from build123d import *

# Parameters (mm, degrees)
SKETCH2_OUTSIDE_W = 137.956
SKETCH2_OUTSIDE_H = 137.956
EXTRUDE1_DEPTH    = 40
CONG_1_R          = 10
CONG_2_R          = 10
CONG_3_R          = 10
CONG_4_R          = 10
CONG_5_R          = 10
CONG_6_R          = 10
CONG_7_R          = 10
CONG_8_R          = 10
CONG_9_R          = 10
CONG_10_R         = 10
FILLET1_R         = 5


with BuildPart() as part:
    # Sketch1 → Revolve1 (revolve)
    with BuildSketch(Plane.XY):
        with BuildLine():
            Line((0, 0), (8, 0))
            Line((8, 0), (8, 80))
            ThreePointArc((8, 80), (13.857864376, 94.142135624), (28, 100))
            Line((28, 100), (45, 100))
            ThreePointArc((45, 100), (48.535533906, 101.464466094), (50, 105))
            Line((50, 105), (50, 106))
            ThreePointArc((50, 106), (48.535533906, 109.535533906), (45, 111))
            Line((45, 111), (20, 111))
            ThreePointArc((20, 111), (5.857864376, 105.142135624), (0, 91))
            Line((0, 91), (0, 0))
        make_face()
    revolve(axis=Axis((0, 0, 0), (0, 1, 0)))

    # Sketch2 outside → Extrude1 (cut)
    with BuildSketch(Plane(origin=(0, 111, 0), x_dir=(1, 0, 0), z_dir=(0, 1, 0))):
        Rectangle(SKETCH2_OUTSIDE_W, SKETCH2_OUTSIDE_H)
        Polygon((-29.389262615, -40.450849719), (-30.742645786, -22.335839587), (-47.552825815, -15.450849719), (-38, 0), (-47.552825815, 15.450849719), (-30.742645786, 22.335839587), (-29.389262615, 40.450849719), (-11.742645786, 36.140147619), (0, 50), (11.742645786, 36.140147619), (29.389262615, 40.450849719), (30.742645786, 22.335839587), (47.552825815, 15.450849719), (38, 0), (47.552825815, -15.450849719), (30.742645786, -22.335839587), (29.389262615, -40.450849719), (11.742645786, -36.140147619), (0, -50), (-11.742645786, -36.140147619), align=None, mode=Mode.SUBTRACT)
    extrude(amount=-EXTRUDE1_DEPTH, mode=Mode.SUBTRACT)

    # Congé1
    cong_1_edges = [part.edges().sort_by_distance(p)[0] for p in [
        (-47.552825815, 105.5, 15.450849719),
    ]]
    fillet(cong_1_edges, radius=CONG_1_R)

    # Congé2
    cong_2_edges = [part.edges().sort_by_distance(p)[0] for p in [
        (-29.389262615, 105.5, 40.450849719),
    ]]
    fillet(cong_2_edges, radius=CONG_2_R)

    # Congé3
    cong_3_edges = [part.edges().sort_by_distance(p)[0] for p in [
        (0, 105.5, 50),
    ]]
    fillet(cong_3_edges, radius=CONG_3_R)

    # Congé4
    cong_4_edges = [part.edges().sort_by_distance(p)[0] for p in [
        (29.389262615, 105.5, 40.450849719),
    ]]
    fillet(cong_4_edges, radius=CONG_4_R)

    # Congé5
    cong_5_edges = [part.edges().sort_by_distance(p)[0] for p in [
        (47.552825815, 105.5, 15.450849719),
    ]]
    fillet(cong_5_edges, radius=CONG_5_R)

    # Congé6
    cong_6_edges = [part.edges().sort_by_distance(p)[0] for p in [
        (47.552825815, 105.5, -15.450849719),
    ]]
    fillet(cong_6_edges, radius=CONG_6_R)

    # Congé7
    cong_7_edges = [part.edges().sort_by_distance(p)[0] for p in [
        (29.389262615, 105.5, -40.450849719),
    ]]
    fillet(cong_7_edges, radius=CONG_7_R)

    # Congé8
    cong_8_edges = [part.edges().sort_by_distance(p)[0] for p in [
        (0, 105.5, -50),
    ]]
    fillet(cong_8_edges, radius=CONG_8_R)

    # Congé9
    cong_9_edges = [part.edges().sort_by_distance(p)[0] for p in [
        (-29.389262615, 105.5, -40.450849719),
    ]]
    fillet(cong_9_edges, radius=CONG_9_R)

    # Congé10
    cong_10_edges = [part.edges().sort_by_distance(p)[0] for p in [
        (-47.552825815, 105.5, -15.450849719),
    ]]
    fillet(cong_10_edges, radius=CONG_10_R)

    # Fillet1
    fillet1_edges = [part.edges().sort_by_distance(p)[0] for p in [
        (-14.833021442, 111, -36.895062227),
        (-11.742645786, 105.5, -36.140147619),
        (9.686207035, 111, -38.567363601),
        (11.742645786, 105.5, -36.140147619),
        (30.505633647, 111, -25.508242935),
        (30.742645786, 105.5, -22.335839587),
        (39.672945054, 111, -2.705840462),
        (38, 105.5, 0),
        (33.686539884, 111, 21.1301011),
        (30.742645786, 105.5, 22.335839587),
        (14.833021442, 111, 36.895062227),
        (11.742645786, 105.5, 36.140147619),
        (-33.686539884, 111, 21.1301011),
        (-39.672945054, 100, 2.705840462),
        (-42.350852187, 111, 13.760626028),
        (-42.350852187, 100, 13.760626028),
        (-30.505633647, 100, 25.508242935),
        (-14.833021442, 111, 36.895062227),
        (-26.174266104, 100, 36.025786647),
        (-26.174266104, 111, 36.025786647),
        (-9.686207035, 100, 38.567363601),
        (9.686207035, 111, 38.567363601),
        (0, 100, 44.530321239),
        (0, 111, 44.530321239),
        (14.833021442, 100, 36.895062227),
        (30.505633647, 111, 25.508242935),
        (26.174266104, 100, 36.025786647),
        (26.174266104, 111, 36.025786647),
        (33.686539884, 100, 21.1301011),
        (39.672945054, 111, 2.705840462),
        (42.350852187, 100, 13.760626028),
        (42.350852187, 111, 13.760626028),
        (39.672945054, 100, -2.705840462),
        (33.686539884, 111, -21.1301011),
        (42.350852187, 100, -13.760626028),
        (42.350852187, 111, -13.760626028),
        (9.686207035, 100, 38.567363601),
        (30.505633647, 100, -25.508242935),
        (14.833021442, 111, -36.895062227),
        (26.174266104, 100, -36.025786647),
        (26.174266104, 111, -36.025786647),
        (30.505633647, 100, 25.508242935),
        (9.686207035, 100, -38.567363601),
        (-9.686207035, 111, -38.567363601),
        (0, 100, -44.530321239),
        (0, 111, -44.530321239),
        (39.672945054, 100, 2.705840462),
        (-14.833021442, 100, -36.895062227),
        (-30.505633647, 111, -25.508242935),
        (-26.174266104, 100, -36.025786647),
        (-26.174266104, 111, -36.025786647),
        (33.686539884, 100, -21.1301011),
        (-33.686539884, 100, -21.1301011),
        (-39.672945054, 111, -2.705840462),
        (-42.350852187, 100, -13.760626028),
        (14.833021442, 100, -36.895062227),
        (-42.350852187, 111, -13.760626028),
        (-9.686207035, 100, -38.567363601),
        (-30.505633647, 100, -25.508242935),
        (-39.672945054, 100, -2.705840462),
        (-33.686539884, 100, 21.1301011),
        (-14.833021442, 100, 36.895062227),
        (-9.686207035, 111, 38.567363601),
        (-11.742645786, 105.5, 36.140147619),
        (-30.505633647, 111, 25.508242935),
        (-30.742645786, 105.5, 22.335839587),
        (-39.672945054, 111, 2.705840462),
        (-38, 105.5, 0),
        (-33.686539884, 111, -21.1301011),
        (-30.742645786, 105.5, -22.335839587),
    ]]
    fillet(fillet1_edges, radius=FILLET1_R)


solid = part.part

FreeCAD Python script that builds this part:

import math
import FreeCAD as App
import Part
import Sketcher

V = App.Vector


def edges_at(feature, points):
    """Names of the edges that pass closest to the given points."""
    edges = feature.Shape.Edges
    near = lambda p: min(range(len(edges)), key=lambda i: edges[i].distToShape(Part.Vertex(*p))[0])
    return sorted({f"Edge{near(p) + 1}" for p in points})


def add_polygon(sketch, points):
    """Adds a closed chain of lines whose ends are joined by coincident constraints."""
    first, n = sketch.GeometryCount, len(points)
    for a, b in zip(points, points[1:] + points[:1]):
        sketch.addGeometry(Part.LineSegment(App.Vector(*a, 0), App.Vector(*b, 0)), False)
    for i in range(n):
        sketch.addConstraint(Sketcher.Constraint("Coincident", first + i, 2, first + (i + 1) % n, 1))

doc = App.newDocument("Part")
body = doc.addObject("PartDesign::Body", "Body")

# Sketch on XY plane
sketch1 = doc.addObject("Sketcher::SketchObject", "Sketch")
body.addObject(sketch1)
sketch1.AttachmentSupport = (doc.XY_Plane, [""])
sketch1.MapMode = "FlatFace"
sketch1.addGeometry(Part.LineSegment(V(0, 0, 0), V(8, 0, 0)), False)
sketch1.addGeometry(Part.LineSegment(V(8, 0, 0), V(8, 80, 0)), False)
sketch1.addGeometry(Part.ArcOfCircle(Part.Circle(V(28, 80, 0), V(0, 0, 1), 20), math.radians(90), math.radians(180)), False)
sketch1.addGeometry(Part.LineSegment(V(28, 100, 0), V(45, 100, 0)), False)
sketch1.addGeometry(Part.ArcOfCircle(Part.Circle(V(45, 105, 0), V(0, 0, 1), 5), math.radians(-90), math.radians(0)), False)
sketch1.addGeometry(Part.LineSegment(V(50, 105, 0), V(50, 106, 0)), False)
sketch1.addGeometry(Part.ArcOfCircle(Part.Circle(V(45, 106, 0), V(0, 0, 1), 5), math.radians(0), math.radians(90)), False)
sketch1.addGeometry(Part.LineSegment(V(45, 111, 0), V(20, 111, 0)), False)
sketch1.addGeometry(Part.ArcOfCircle(Part.Circle(V(20, 91, 0), V(0, 0, 1), 20), math.radians(90), math.radians(180)), False)
sketch1.addGeometry(Part.LineSegment(V(0, 91, 0), V(0, 0, 0)), False)
sketch1.addConstraint(Sketcher.Constraint("Coincident", 0, 2, 1, 1))
sketch1.addConstraint(Sketcher.Constraint("Tangent", 1, 2, 2, 2))
sketch1.addConstraint(Sketcher.Constraint("Tangent", 2, 1, 3, 1))
sketch1.addConstraint(Sketcher.Constraint("Tangent", 3, 2, 4, 1))
sketch1.addConstraint(Sketcher.Constraint("Tangent", 4, 2, 5, 1))
sketch1.addConstraint(Sketcher.Constraint("Tangent", 5, 2, 6, 1))
sketch1.addConstraint(Sketcher.Constraint("Tangent", 6, 2, 7, 1))
sketch1.addConstraint(Sketcher.Constraint("Tangent", 7, 2, 8, 1))
sketch1.addConstraint(Sketcher.Constraint("Tangent", 8, 2, 9, 1))
sketch1.addConstraint(Sketcher.Constraint("Coincident", 9, 2, 0, 1))
sketch1.addConstraint(Sketcher.Constraint("Horizontal", 0))
sketch1.addConstraint(Sketcher.Constraint("Vertical", 1))
sketch1.addConstraint(Sketcher.Constraint("Horizontal", 3))
sketch1.addConstraint(Sketcher.Constraint("Vertical", 5))
sketch1.addConstraint(Sketcher.Constraint("Horizontal", 7))
sketch1.addConstraint(Sketcher.Constraint("Vertical", 9))
sketch1.addConstraint(Sketcher.Constraint("Coincident", 9, 2, -1, 1))
sketch1.addConstraint(Sketcher.Constraint("Equal", 4, 6))
sketch1.addConstraint(Sketcher.Constraint("Equal", 2, 8))
sketch1.addConstraint(Sketcher.Constraint("Radius", 2, 20.0))
sketch1.addConstraint(Sketcher.Constraint("Radius", 4, 5.0))
sketch1.addConstraint(Sketcher.Constraint("DistanceX", 0, 1, 0, 2, 8.0))
sketch1.addConstraint(Sketcher.Constraint("DistanceX", 3, 1, 3, 2, 17.0))
sketch1.addConstraint(Sketcher.Constraint("DistanceY", 1, 1, 1, 2, 80.0))
sketch1.addConstraint(Sketcher.Constraint("DistanceY", 5, 1, 5, 2, 1.0))
revolution = doc.addObject("PartDesign::Revolution", "Revolution")
body.addObject(revolution)
revolution.Profile = sketch1
revolution.ReferenceAxis = (sketch1, ["V_Axis"])
revolution.Angle = 360

# Sketch on XZ plane
sketch2 = doc.addObject("Sketcher::SketchObject", "Sketch001")
body.addObject(sketch2)
sketch2.AttachmentSupport = (doc.XZ_Plane, [""])
sketch2.MapMode = "FlatFace"
sketch2.AttachmentOffset = App.Placement(V(0, 0, -111), App.Rotation())
add_polygon(sketch2, [(-68.978, -68.978), (-68.978, 68.978), (68.978, 68.978), (68.978, -68.978)])  # lines 0-3
add_polygon(sketch2, [(-11.742646, 36.140148), (-29.389263, 40.45085), (-30.742646, 22.33584), (-47.552826, 15.45085), (-38, 0), (-47.552826, -15.45085), (-30.742646, -22.33584), (-29.389263, -40.45085), (-11.742646, -36.140148), (0, -50), (11.742646, -36.140148), (29.389263, -40.45085), (30.742646, -22.33584), (47.552826, -15.45085), (38, 0), (47.552826, 15.45085), (30.742646, 22.33584), (29.389263, 40.45085), (11.742646, 36.140148), (0, 50)])  # lines 4-23
sketch2.addConstraint(Sketcher.Constraint("Vertical", 0))
sketch2.addConstraint(Sketcher.Constraint("Horizontal", 1))
sketch2.addConstraint(Sketcher.Constraint("Vertical", 2))
sketch2.addConstraint(Sketcher.Constraint("Horizontal", 3))
sketch2.addConstraint(Sketcher.Constraint("Symmetric", 0, 2, 2, 2, -1, 1))
sketch2.addConstraint(Sketcher.Constraint("Symmetric", 4, 2, 14, 2, -1, 1))
sketch2.addConstraint(Sketcher.Constraint("Symmetric", 5, 2, 15, 2, -1, 1))
sketch2.addConstraint(Sketcher.Constraint("Symmetric", 6, 2, 16, 2, -1, 1))
sketch2.addConstraint(Sketcher.Constraint("Symmetric", 7, 2, 17, 2, -1, 1))
sketch2.addConstraint(Sketcher.Constraint("Symmetric", 8, 2, 18, 2, -1, 1))
sketch2.addConstraint(Sketcher.Constraint("Symmetric", 9, 2, 19, 2, -1, 1))
sketch2.addConstraint(Sketcher.Constraint("Symmetric", 10, 2, 20, 2, -1, 1))
sketch2.addConstraint(Sketcher.Constraint("Symmetric", 11, 2, 21, 2, -1, 1))
sketch2.addConstraint(Sketcher.Constraint("Symmetric", 12, 2, 22, 2, -1, 1))
sketch2.addConstraint(Sketcher.Constraint("Symmetric", 13, 2, 23, 2, -1, 1))
sketch2.addConstraint(Sketcher.Constraint("Symmetric", 11, 2, 13, 2, -2))
sketch2.addConstraint(Sketcher.Constraint("Symmetric", 10, 2, 14, 2, -2))
sketch2.addConstraint(Sketcher.Constraint("Symmetric", 9, 2, 15, 2, -2))
sketch2.addConstraint(Sketcher.Constraint("Symmetric", 8, 2, 16, 2, -2))
sketch2.addConstraint(Sketcher.Constraint("PointOnObject", 7, 2, -1))
sketch2.addConstraint(Sketcher.Constraint("PointOnObject", 12, 2, -2))
sketch2.addConstraint(Sketcher.Constraint("Equal", 3, 0))
sketch2.addConstraint(Sketcher.Constraint("Equal", 4, 5))
sketch2.addConstraint(Sketcher.Constraint("Equal", 5, 6))
sketch2.addConstraint(Sketcher.Constraint("Equal", 6, 7))
sketch2.addConstraint(Sketcher.Constraint("Equal", 11, 12))
sketch2.addConstraint(Sketcher.Constraint("DistanceX", 7, 2, -1, 1, 38.0))
sketch2.addConstraint(Sketcher.Constraint("DistanceY", 12, 2, -1, 1, 50.0))
sketch2.addConstraint(Sketcher.Constraint("DistanceY", 6, 2, 4, 2, 25.0))
sketch2.addConstraint(Sketcher.Constraint("DistanceX", 9, 2, 11, 2, 19.0))
sketch2.addConstraint(Sketcher.Constraint("DistanceX", 1, 1, 1, 2, 137.956))
sketch2.addConstraint(Sketcher.Constraint("DistanceY", 8, 2, 6, 2, 30.901699))
sketch2.addConstraint(Sketcher.Constraint("DistanceY", -1, 1, 5, 2, 22.33584))
pocket1 = doc.addObject("PartDesign::Pocket", "Pocket")
body.addObject(pocket1)
pocket1.Profile = sketch2
pocket1.Length = 40
pocket1.Reversed = True
doc.recompute()

fillet = doc.addObject("PartDesign::Fillet", "Fillet")
body.addObject(fillet)
fillet.Base = (pocket1, edges_at(pocket1, [(-47.553, 105.5, 15.451)]))
fillet.Radius = 10
doc.recompute()

fillet2 = doc.addObject("PartDesign::Fillet", "Fillet001")
body.addObject(fillet2)
fillet2.Base = (fillet, edges_at(fillet, [(-29.389, 105.5, 40.451)]))
fillet2.Radius = 10
doc.recompute()

fillet3 = doc.addObject("PartDesign::Fillet", "Fillet002")
body.addObject(fillet3)
fillet3.Base = (fillet2, edges_at(fillet2, [(0, 105.5, 50)]))
fillet3.Radius = 10
doc.recompute()

fillet4 = doc.addObject("PartDesign::Fillet", "Fillet003")
body.addObject(fillet4)
fillet4.Base = (fillet3, edges_at(fillet3, [(29.389, 105.5, 40.451)]))
fillet4.Radius = 10
doc.recompute()

fillet5 = doc.addObject("PartDesign::Fillet", "Fillet004")
body.addObject(fillet5)
fillet5.Base = (fillet4, edges_at(fillet4, [(47.553, 105.5, 15.451)]))
fillet5.Radius = 10
doc.recompute()

fillet6 = doc.addObject("PartDesign::Fillet", "Fillet005")
body.addObject(fillet6)
fillet6.Base = (fillet5, edges_at(fillet5, [(47.553, 105.5, -15.451)]))
fillet6.Radius = 10
doc.recompute()

fillet7 = doc.addObject("PartDesign::Fillet", "Fillet006")
body.addObject(fillet7)
fillet7.Base = (fillet6, edges_at(fillet6, [(29.389, 105.5, -40.451)]))
fillet7.Radius = 10
doc.recompute()

fillet8 = doc.addObject("PartDesign::Fillet", "Fillet007")
body.addObject(fillet8)
fillet8.Base = (fillet7, edges_at(fillet7, [(0, 105.5, -50)]))
fillet8.Radius = 10
doc.recompute()

fillet9 = doc.addObject("PartDesign::Fillet", "Fillet008")
body.addObject(fillet9)
fillet9.Base = (fillet8, edges_at(fillet8, [(-29.389, 105.5, -40.451)]))
fillet9.Radius = 10
doc.recompute()

fillet10 = doc.addObject("PartDesign::Fillet", "Fillet009")
body.addObject(fillet10)
fillet10.Base = (fillet9, edges_at(fillet9, [(-47.553, 105.5, -15.451)]))
fillet10.Radius = 10
doc.recompute()

fillet11 = doc.addObject("PartDesign::Fillet", "Fillet010")
body.addObject(fillet11)
fillet11.Base = (fillet10, edges_at(fillet10, [
    (-14.833, 111, -36.895),
    (-11.743, 105.5, -36.14),
    (9.686, 111, -38.567),
    (11.743, 105.5, -36.14),
    (30.506, 111, -25.508),
    (30.743, 105.5, -22.336),
    (39.673, 111, -2.706),
    (38, 105.5, 0),
    (33.687, 111, 21.13),
    (30.743, 105.5, 22.336),
    (14.833, 111, 36.895),
    (11.743, 105.5, 36.14),
    (-33.687, 111, 21.13),
    (-39.673, 100, 2.706),
    (-42.351, 111, 13.761),
    (-42.351, 100, 13.761),
    (-30.506, 100, 25.508),
    (-14.833, 111, 36.895),
    (-26.174, 100, 36.026),
    (-26.174, 111, 36.026),
    (-9.686, 100, 38.567),
    (9.686, 111, 38.567),
    (0, 100, 44.53),
    (0, 111, 44.53),
    (14.833, 100, 36.895),
    (30.506, 111, 25.508),
    (26.174, 100, 36.026),
    (26.174, 111, 36.026),
    (33.687, 100, 21.13),
    (39.673, 111, 2.706),
    (42.351, 100, 13.761),
    (42.351, 111, 13.761),
    (39.673, 100, -2.706),
    (33.687, 111, -21.13),
    (42.351, 100, -13.761),
    (42.351, 111, -13.761),
    (9.686, 100, 38.567),
    (30.506, 100, -25.508),
    (14.833, 111, -36.895),
    (26.174, 100, -36.026),
    (26.174, 111, -36.026),
    (30.506, 100, 25.508),
    (9.686, 100, -38.567),
    (-9.686, 111, -38.567),
    (0, 100, -44.53),
    (0, 111, -44.53),
    (39.673, 100, 2.706),
    (-14.833, 100, -36.895),
    (-30.506, 111, -25.508),
    (-26.174, 100, -36.026),
    (-26.174, 111, -36.026),
    (33.687, 100, -21.13),
    (-33.687, 100, -21.13),
    (-39.673, 111, -2.706),
    (-42.351, 100, -13.761),
    (14.833, 100, -36.895),
    (-42.351, 111, -13.761),
    (-9.686, 100, -38.567),
    (-30.506, 100, -25.508),
    (-39.673, 100, -2.706),
    (-33.687, 100, 21.13),
    (-14.833, 100, 36.895),
    (-9.686, 111, 38.567),
    (-11.743, 105.5, 36.14),
    (-30.506, 111, 25.508),
    (-30.743, 105.5, 22.336),
    (-39.673, 111, 2.706),
    (-38, 105.5, 0),
    (-33.687, 111, -21.13),
    (-30.743, 105.5, -22.336),
]))
fillet11.Radius = 5

doc.recompute()
